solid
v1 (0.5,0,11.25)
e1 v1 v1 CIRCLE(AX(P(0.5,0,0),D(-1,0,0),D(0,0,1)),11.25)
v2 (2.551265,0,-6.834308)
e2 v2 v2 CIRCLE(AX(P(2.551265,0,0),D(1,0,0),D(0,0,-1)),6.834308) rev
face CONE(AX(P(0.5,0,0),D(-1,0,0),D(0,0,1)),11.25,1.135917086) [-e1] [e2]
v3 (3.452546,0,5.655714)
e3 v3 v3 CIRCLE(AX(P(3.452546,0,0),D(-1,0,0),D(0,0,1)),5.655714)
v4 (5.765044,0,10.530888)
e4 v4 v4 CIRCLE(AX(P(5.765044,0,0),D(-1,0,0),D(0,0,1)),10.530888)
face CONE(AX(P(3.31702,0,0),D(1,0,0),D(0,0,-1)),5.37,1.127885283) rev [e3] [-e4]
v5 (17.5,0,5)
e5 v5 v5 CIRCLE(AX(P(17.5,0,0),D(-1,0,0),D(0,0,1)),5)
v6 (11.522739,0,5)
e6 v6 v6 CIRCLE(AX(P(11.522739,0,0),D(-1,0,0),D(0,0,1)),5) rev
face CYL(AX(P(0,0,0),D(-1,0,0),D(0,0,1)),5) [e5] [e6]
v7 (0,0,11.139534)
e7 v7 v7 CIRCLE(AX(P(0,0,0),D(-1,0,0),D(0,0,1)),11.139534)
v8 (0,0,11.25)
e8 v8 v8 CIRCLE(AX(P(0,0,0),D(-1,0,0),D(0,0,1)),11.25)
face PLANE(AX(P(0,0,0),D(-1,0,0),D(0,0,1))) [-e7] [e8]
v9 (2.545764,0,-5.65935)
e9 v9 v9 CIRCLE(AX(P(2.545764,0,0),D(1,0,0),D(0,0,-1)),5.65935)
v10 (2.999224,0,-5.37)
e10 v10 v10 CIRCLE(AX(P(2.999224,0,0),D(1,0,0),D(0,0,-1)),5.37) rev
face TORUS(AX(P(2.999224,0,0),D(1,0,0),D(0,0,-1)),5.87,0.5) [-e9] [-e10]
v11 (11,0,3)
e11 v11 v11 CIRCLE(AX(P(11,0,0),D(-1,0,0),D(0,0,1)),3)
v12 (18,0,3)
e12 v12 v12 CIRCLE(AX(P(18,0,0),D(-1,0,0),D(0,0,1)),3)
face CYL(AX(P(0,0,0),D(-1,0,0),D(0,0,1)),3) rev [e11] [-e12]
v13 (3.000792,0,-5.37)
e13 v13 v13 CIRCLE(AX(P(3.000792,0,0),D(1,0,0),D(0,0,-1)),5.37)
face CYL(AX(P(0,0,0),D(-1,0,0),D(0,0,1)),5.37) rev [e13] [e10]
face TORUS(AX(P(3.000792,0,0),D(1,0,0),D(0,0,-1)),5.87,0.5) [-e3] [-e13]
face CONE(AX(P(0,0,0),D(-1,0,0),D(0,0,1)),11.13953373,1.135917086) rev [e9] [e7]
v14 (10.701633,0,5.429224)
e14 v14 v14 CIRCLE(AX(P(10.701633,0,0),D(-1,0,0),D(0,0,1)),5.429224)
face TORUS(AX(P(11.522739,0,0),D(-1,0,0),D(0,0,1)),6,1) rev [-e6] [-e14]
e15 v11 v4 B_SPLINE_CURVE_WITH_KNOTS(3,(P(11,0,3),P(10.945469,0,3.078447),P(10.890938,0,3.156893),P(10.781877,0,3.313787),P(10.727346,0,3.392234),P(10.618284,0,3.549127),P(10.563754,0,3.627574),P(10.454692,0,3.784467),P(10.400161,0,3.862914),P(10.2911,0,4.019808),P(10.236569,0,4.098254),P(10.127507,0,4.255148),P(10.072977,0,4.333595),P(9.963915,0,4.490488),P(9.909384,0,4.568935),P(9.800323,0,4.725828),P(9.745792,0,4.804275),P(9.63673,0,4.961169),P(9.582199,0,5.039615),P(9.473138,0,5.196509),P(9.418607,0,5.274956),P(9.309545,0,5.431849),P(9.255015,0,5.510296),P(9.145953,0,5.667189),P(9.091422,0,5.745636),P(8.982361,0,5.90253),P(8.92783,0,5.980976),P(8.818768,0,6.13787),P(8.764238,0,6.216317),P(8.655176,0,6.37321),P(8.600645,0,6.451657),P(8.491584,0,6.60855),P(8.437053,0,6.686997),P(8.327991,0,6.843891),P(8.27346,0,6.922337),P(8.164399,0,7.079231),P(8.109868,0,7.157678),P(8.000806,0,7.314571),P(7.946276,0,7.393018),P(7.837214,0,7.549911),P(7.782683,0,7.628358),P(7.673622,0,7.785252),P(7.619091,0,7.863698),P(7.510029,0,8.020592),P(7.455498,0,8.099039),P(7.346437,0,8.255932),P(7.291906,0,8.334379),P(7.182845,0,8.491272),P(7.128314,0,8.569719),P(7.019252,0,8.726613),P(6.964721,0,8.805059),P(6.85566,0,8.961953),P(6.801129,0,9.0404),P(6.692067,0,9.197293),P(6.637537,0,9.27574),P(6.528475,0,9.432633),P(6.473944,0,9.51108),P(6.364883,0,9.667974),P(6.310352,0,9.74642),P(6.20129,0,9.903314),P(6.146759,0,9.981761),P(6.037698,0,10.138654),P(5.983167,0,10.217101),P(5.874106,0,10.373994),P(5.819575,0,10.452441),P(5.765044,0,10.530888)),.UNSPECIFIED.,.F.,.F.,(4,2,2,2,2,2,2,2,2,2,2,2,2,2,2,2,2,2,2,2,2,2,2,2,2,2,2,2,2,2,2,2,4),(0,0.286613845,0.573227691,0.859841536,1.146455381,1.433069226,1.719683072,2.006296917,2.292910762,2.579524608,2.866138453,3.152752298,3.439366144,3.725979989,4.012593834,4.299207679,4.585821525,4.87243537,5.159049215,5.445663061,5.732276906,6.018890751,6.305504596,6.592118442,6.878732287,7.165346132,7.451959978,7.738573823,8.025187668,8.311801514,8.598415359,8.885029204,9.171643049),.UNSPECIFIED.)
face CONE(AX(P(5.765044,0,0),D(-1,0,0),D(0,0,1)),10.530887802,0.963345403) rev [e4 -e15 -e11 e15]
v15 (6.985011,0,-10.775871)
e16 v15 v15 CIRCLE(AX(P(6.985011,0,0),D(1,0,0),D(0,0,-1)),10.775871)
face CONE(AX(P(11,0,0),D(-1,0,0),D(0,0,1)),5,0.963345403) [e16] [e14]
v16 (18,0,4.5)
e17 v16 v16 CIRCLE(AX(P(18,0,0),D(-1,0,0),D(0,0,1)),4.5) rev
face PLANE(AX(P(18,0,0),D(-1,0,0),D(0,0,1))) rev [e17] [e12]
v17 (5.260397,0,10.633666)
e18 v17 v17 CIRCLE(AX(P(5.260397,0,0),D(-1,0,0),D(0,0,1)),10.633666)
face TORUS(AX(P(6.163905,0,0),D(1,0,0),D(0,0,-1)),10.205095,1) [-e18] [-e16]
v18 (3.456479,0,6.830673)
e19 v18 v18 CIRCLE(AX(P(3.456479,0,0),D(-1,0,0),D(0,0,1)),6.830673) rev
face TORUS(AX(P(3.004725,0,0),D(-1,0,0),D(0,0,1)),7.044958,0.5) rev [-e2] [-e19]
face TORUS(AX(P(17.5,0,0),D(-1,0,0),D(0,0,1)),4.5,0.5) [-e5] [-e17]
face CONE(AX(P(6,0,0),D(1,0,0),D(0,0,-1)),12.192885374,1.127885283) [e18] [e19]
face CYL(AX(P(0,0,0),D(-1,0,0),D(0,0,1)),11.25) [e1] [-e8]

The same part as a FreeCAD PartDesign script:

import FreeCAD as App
import Part
import Sketcher

V = App.Vector
Q = App.Units.Quantity


def edges_at(feature, points):
    """Names of the edges that pass closest to the given points."""
    edges = feature.Shape.Edges
    near = lambda p: min(range(len(edges)), key=lambda i: edges[i].distToShape(Part.Vertex(*p))[0])
    return sorted({f"Edge{near(p) + 1}" for p in points})

doc = App.newDocument("Part")
params = doc.addObject("Spreadsheet::Sheet", "Params")
for row, (alias, value) in enumerate([
    ("sketch1_width", "7 mm"),
    ("sketch1_height", "2 mm"),
    ("sketch1_length", "7 mm"),
    ("sketch1_width2", "0.5 mm"),
    ("sketch1_length2", "8.76 mm"),
    ("revolution_angle", "360 deg"),
    ("fillet_radius", "1 mm"),
    ("fillet2_radius", "1 mm"),
    ("fillet3_radius", "0.5 mm"),
    ("fillet4_radius", "0.5 mm"),
    ("fillet5_radius", "0.5 mm"),
], start=1):
    params.set(f"A{row}", alias)
    params.set(f"B{row}", "=" + value)
    params.setAlias(f"B{row}", alias)

body = doc.addObject("PartDesign::Body", "Body")

# Sketch on XY plane
sketch1 = doc.addObject("Sketcher::SketchObject", "Sketch")
body.addObject(sketch1)
sketch1.AttachmentSupport = (doc.XY_Plane, [""])
sketch1.MapMode = "FlatFace"
sketch1.addGeometry([
    Part.LineSegment(V(0, 11.25, 0), V(0, 11.139534, 0)),  # 0
    Part.LineSegment(V(0, 11.139534, 0), V(2.680178, 5.37, 0)),  # 1
    Part.LineSegment(V(2.680178, 5.37, 0), V(3.31702, 5.37, 0)),  # 2
    Part.LineSegment(V(3.31702, 5.37, 0), V(5.765044, 10.530888, 0)),  # 3
    Part.LineSegment(V(5.765044, 10.530888, 0), V(11, 3, 0)),  # 4
    Part.LineSegment(V(11, 3, 0), V(18, 3, 0)),  # 5
    Part.LineSegment(V(18, 3, 0), V(18, 5, 0)),  # 6
    Part.LineSegment(V(18, 5, 0), V(11, 5, 0)),  # 7
    Part.LineSegment(V(11, 5, 0), V(6, 12.192885, 0)),  # 8
    Part.LineSegment(V(6, 12.192885, 0), V(3, 5.86833, 0)),  # 9
    Part.LineSegment(V(3, 5.86833, 0), V(0.5, 11.25, 0)),  # 10
    Part.LineSegment(V(0.5, 11.25, 0), V(0, 11.25, 0)),  # 11
], False)
sketch1.addConstraint([
    Sketcher.Constraint("Coincident", 0, 2, 1, 1),
    Sketcher.Constraint("Coincident", 1, 2, 2, 1),
    Sketcher.Constraint("Coincident", 2, 2, 3, 1),
    Sketcher.Constraint("Coincident", 3, 2, 4, 1),
    Sketcher.Constraint("Coincident", 4, 2, 5, 1),
    Sketcher.Constraint("Coincident", 5, 2, 6, 1),
    Sketcher.Constraint("Coincident", 6, 2, 7, 1),
    Sketcher.Constraint("Coincident", 7, 2, 8, 1),
    Sketcher.Constraint("Coincident", 8, 2, 9, 1),
    Sketcher.Constraint("Coincident", 9, 2, 10, 1),
    Sketcher.Constraint("Coincident", 10, 2, 11, 1),
    Sketcher.Constraint("Coincident", 11, 2, 0, 1),
    Sketcher.Constraint("Vertical", 0),
    Sketcher.Constraint("Horizontal", 2),
    Sketcher.Constraint("Horizontal", 5),
    Sketcher.Constraint("Vertical", 6),
    Sketcher.Constraint("Horizontal", 7),
    Sketcher.Constraint("Horizontal", 11),
    Sketcher.Constraint("PointOnObject", 0, 2, -2),
    Sketcher.Constraint("Parallel", 4, 8),
    Sketcher.Constraint("Parallel", 3, 9),
    Sketcher.Constraint("Parallel", 1, 10),
    Sketcher.Constraint("Vertical", 4, 2, 7, 2),
    Sketcher.Constraint("DistanceX", 5, 1, 5, 2, Q("7 mm")),
    Sketcher.Constraint("DistanceY", 6, 1, 6, 2, Q("2 mm")),
    Sketcher.Constraint("Distance", 9, Q("7 mm")),
    Sketcher.Constraint("DistanceX", 11, 2, 11, 1, Q("0.5 mm")),
    Sketcher.Constraint("DistanceX", -1, 1, 4, 2, Q("11 mm")),
    Sketcher.Constraint("DistanceY", -1, 1, 4, 2, Q("3 mm")),
    Sketcher.Constraint("DistanceX", -1, 1, 8, 2, Q("6 mm")),
    Sketcher.Constraint("DistanceX", -1, 1, 9, 2, Q("3 mm")),
    Sketcher.Constraint("Distance", 8, Q("8.76 mm")),
    Sketcher.Constraint("DistanceY", -1, 1, 1, 2, Q("5.37 mm")),
    Sketcher.Constraint("DistanceY", -1, 1, 10, 2, Q("11.25 mm")),
    Sketcher.Constraint("DistanceX", 2, 1, 2, 2, Q("0.636842 mm")),
    Sketcher.Constraint("DistanceY", 0, 2, 0, 1, Q("0.110466 mm")),
])
sketch1.setExpression("Constraints[23]", "Params.sketch1_width")
sketch1.setExpression("Constraints[24]", "Params.sketch1_height")
sketch1.setExpression("Constraints[25]", "Params.sketch1_length")
sketch1.setExpression("Constraints[26]", "Params.sketch1_width2")
sketch1.setExpression("Constraints[31]", "Params.sketch1_length2")
revolution = doc.addObject("PartDesign::Revolution", "Revolution")
body.addObject(revolution)
revolution.Profile = sketch1
revolution.ReferenceAxis = (sketch1, ["H_Axis"])
revolution.setExpression("Angle", "Params.revolution_angle")
doc.recompute()

fillet = doc.addObject("PartDesign::Fillet", "Fillet")
body.addObject(fillet)
fillet.Base = (revolution, edges_at(revolution, [(6, 0, -12.193)]))
fillet.setExpression("Radius", "Params.fillet_radius")
doc.recompute()

fillet2 = doc.addObject("PartDesign::Fillet", "Fillet001")
body.addObject(fillet2)
fillet2.Base = (fillet, edges_at(fillet, [(11, 0, -5)]))
fillet2.setExpression("Radius", "Params.fillet2_radius")
doc.recompute()

fillet3 = doc.addObject("PartDesign::Fillet", "Fillet002")
body.addObject(fillet3)
fillet3.Base = (fillet2, edges_at(fillet2, [(3, 0, -5.868)]))
fillet3.setExpression("Radius", "Params.fillet3_radius")
doc.recompute()

fillet4 = doc.addObject("PartDesign::Fillet", "Fillet003")
body.addObject(fillet4)
fillet4.Base = (fillet3, edges_at(fillet3, [(3.317, 0, -5.37), (2.68, 0, -5.37)]))
fillet4.setExpression("Radius", "Params.fillet4_radius")
doc.recompute()

fillet5 = doc.addObject("PartDesign::Fillet", "Fillet004")
body.addObject(fillet5)
fillet5.Base = (fillet4, edges_at(fillet4, [(18, 0, -5)]))
fillet5.setExpression("Radius", "Params.fillet5_radius")

doc.recompute()
